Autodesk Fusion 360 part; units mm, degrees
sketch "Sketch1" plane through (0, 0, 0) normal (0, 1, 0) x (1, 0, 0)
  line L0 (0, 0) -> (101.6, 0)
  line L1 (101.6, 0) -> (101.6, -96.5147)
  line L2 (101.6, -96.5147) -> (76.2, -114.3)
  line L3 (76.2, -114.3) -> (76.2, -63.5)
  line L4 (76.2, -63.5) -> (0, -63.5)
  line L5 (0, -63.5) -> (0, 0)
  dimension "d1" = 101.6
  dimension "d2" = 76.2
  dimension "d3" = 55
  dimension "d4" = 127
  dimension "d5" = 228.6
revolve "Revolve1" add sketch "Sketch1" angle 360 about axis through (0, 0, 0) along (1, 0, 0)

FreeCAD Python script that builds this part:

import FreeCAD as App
import Part
import Sketcher

V = App.Vector
Q = App.Units.Quantity

doc = App.newDocument("Part")
body = doc.addObject("PartDesign::Body", "Body")

sketch1 = body.newObject("Sketcher::SketchObject", "Sketch")
sketch1.AttachmentSupport = (doc.getObject("XZ_Plane"), [""])
sketch1.MapMode = "FlatFace"
sketch1.addGeometry(Part.LineSegment(V(102, 0, 0), V(0, 0, 0)), False)
sketch1.addGeometry(Part.LineSegment(V(0, 0, 0), V(0, 64, 0)), False)
sketch1.addGeometry(Part.LineSegment(V(0, 64, 0), V(76, 64, 0)), False)
sketch1.addGeometry(Part.LineSegment(V(76, 64, 0), V(76, 114, 0)), False)
sketch1.addGeometry(Part.LineSegment(V(76, 114, 0), V(102, 97, 0)), False)
sketch1.addGeometry(Part.LineSegment(V(102, 97, 0), V(102, 0, 0)), False)
sketch1.addConstraint(Sketcher.Constraint("Coincident", 0, 2, 1, 1))
sketch1.addConstraint(Sketcher.Constraint("Coincident", 1, 2, 2, 1))
sketch1.addConstraint(Sketcher.Constraint("Coincident", 2, 2, 3, 1))
sketch1.addConstraint(Sketcher.Constraint("Coincident", 3, 2, 4, 1))
sketch1.addConstraint(Sketcher.Constraint("Coincident", 4, 2, 5, 1))
sketch1.addConstraint(Sketcher.Constraint("Coincident", 5, 2, 0, 1))
sketch1.addConstraint(Sketcher.Constraint("Horizontal", 0))
sketch1.addConstraint(Sketcher.Constraint("Vertical", 1))
sketch1.addConstraint(Sketcher.Constraint("Horizontal", 2))
sketch1.addConstraint(Sketcher.Constraint("Vertical", 3))
sketch1.addConstraint(Sketcher.Constraint("Vertical", 5))
sketch1.addConstraint(Sketcher.Constraint("Coincident", 0, 2, -1, 1))
sketch1.addConstraint(Sketcher.Constraint("DistanceX", 0, 2, 0, 1, Q("4 in")))
sketch1.addConstraint(Sketcher.Constraint("DistanceX", 2, 1, 2, 2, Q("3 in")))
sketch1.addConstraint(Sketcher.Constraint("DistanceY", 3, 1, 3, 2, Q("2 in")))
sketch1.addConstraint(Sketcher.Constraint("DistanceY", 1, 1, 1, 2, Q("2.5 in")))
sketch1.addConstraint(Sketcher.Constraint("Angle", 4, Q("-35 deg")))
revolution = body.newObject("PartDesign::Revolution", "Revolution")
revolution.Profile = sketch1
revolution.ReferenceAxis = (sketch1, ["H_Axis"])
revolution.Angle = 360

doc.recompute()
